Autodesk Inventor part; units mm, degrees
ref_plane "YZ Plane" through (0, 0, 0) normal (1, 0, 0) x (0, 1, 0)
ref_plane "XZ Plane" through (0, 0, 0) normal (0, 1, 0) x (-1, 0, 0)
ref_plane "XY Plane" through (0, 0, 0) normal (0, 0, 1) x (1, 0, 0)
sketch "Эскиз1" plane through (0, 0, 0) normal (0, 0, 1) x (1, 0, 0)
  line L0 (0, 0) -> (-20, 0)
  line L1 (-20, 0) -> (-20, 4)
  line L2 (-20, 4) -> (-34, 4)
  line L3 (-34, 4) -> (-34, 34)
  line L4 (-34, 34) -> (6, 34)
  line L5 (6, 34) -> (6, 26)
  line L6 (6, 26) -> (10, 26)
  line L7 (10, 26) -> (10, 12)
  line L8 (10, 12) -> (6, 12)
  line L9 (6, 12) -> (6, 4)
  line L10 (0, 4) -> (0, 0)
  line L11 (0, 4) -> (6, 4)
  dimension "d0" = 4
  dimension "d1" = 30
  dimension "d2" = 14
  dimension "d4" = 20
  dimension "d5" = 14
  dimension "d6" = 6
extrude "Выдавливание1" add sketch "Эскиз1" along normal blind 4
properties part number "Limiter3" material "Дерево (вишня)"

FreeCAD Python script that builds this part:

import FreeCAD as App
import Part
import Sketcher
Q = App.Units.Quantity

doc = App.newDocument("Part")
body = doc.addObject("PartDesign::Body", "Body")

sketch1 = body.newObject("Sketcher::SketchObject", "Sketch")
sketch1.AttachmentSupport = (doc.getObject("XY_Plane"), [""])
sketch1.MapMode = "FlatFace"
sketch1.addGeometry(Part.LineSegment(App.Vector(-20, 0, 0), App.Vector(0, 0, 0)), False)
sketch1.addGeometry(Part.LineSegment(App.Vector(0, 0, 0), App.Vector(0, 4, 0)), False)
sketch1.addGeometry(Part.LineSegment(App.Vector(0, 4, 0), App.Vector(6, 4, 0)), False)
sketch1.addGeometry(Part.LineSegment(App.Vector(6, 4, 0), App.Vector(6, 12, 0)), False)
sketch1.addGeometry(Part.LineSegment(App.Vector(6, 12, 0), App.Vector(10, 12, 0)), False)
sketch1.addGeometry(Part.LineSegment(App.Vector(10, 12, 0), App.Vector(10, 26, 0)), False)
sketch1.addGeometry(Part.LineSegment(App.Vector(10, 26, 0), App.Vector(6, 26, 0)), False)
sketch1.addGeometry(Part.LineSegment(App.Vector(6, 26, 0), App.Vector(6, 34, 0)), False)
sketch1.addGeometry(Part.LineSegment(App.Vector(6, 34, 0), App.Vector(-34, 34, 0)), False)
sketch1.addGeometry(Part.LineSegment(App.Vector(-34, 34, 0), App.Vector(-34, 4, 0)), False)
sketch1.addGeometry(Part.LineSegment(App.Vector(-34, 4, 0), App.Vector(-20, 4, 0)), False)
sketch1.addGeometry(Part.LineSegment(App.Vector(-20, 4, 0), App.Vector(-20, 0, 0)), False)
sketch1.addConstraint(Sketcher.Constraint("Coincident", 0, 2, 1, 1))
sketch1.addConstraint(Sketcher.Constraint("Coincident", 1, 2, 2, 1))
sketch1.addConstraint(Sketcher.Constraint("Coincident", 2, 2, 3, 1))
sketch1.addConstraint(Sketcher.Constraint("Coincident", 3, 2, 4, 1))
sketch1.addConstraint(Sketcher.Constraint("Coincident", 4, 2, 5, 1))
sketch1.addConstraint(Sketcher.Constraint("Coincident", 5, 2, 6, 1))
sketch1.addConstraint(Sketcher.Constraint("Coincident", 6, 2, 7, 1))
sketch1.addConstraint(Sketcher.Constraint("Coincident", 7, 2, 8, 1))
sketch1.addConstraint(Sketcher.Constraint("Coincident", 8, 2, 9, 1))
sketch1.addConstraint(Sketcher.Constraint("Coincident", 9, 2, 10, 1))
sketch1.addConstraint(Sketcher.Constraint("Coincident", 10, 2, 11, 1))
sketch1.addConstraint(Sketcher.Constraint("Coincident", 11, 2, 0, 1))
sketch1.addConstraint(Sketcher.Constraint("Horizontal", 0))
sketch1.addConstraint(Sketcher.Constraint("Vertical", 1))
sketch1.addConstraint(Sketcher.Constraint("Horizontal", 2))
sketch1.addConstraint(Sketcher.Constraint("Vertical", 3))
sketch1.addConstraint(Sketcher.Constraint("Horizontal", 4))
sketch1.addConstraint(Sketcher.Constraint("Vertical", 5))
sketch1.addConstraint(Sketcher.Constraint("Horizontal", 6))
sketch1.addConstraint(Sketcher.Constraint("Vertical", 7))
sketch1.addConstraint(Sketcher.Constraint("Horizontal", 8))
sketch1.addConstraint(Sketcher.Constraint("Vertical", 9))
sketch1.addConstraint(Sketcher.Constraint("Horizontal", 10))
sketch1.addConstraint(Sketcher.Constraint("Vertical", 11))
sketch1.addConstraint(Sketcher.Constraint("Coincident", 0, 2, -1, 1))
sketch1.addConstraint(Sketcher.Constraint("Horizontal", 2, 2, 9, 2))
sketch1.addConstraint(Sketcher.Constraint("Vertical", 3, 2, 6, 2))
sketch1.addConstraint(Sketcher.Constraint("Equal", 6, 1))
sketch1.addConstraint(Sketcher.Constraint("Equal", 10, 5))
sketch1.addConstraint(Sketcher.Constraint("Equal", 3, 7))
sketch1.addConstraint(Sketcher.Constraint("DistanceX", 0, 1, 0, 2, Q("20 mm")))
sketch1.addConstraint(Sketcher.Constraint("DistanceX", 2, 1, 2, 2, Q("6 mm")))
sketch1.addConstraint(Sketcher.Constraint("DistanceX", 4, 1, 4, 2, Q("4 mm")))
sketch1.addConstraint(Sketcher.Constraint("DistanceX", 10, 1, 10, 2, Q("14 mm")))
sketch1.addConstraint(Sketcher.Constraint("DistanceY", 9, 2, 9, 1, Q("30 mm")))
pad1 = body.newObject("PartDesign::Pad", "Pad")
pad1.Profile = sketch1
pad1.Length = 4

doc.recompute()
